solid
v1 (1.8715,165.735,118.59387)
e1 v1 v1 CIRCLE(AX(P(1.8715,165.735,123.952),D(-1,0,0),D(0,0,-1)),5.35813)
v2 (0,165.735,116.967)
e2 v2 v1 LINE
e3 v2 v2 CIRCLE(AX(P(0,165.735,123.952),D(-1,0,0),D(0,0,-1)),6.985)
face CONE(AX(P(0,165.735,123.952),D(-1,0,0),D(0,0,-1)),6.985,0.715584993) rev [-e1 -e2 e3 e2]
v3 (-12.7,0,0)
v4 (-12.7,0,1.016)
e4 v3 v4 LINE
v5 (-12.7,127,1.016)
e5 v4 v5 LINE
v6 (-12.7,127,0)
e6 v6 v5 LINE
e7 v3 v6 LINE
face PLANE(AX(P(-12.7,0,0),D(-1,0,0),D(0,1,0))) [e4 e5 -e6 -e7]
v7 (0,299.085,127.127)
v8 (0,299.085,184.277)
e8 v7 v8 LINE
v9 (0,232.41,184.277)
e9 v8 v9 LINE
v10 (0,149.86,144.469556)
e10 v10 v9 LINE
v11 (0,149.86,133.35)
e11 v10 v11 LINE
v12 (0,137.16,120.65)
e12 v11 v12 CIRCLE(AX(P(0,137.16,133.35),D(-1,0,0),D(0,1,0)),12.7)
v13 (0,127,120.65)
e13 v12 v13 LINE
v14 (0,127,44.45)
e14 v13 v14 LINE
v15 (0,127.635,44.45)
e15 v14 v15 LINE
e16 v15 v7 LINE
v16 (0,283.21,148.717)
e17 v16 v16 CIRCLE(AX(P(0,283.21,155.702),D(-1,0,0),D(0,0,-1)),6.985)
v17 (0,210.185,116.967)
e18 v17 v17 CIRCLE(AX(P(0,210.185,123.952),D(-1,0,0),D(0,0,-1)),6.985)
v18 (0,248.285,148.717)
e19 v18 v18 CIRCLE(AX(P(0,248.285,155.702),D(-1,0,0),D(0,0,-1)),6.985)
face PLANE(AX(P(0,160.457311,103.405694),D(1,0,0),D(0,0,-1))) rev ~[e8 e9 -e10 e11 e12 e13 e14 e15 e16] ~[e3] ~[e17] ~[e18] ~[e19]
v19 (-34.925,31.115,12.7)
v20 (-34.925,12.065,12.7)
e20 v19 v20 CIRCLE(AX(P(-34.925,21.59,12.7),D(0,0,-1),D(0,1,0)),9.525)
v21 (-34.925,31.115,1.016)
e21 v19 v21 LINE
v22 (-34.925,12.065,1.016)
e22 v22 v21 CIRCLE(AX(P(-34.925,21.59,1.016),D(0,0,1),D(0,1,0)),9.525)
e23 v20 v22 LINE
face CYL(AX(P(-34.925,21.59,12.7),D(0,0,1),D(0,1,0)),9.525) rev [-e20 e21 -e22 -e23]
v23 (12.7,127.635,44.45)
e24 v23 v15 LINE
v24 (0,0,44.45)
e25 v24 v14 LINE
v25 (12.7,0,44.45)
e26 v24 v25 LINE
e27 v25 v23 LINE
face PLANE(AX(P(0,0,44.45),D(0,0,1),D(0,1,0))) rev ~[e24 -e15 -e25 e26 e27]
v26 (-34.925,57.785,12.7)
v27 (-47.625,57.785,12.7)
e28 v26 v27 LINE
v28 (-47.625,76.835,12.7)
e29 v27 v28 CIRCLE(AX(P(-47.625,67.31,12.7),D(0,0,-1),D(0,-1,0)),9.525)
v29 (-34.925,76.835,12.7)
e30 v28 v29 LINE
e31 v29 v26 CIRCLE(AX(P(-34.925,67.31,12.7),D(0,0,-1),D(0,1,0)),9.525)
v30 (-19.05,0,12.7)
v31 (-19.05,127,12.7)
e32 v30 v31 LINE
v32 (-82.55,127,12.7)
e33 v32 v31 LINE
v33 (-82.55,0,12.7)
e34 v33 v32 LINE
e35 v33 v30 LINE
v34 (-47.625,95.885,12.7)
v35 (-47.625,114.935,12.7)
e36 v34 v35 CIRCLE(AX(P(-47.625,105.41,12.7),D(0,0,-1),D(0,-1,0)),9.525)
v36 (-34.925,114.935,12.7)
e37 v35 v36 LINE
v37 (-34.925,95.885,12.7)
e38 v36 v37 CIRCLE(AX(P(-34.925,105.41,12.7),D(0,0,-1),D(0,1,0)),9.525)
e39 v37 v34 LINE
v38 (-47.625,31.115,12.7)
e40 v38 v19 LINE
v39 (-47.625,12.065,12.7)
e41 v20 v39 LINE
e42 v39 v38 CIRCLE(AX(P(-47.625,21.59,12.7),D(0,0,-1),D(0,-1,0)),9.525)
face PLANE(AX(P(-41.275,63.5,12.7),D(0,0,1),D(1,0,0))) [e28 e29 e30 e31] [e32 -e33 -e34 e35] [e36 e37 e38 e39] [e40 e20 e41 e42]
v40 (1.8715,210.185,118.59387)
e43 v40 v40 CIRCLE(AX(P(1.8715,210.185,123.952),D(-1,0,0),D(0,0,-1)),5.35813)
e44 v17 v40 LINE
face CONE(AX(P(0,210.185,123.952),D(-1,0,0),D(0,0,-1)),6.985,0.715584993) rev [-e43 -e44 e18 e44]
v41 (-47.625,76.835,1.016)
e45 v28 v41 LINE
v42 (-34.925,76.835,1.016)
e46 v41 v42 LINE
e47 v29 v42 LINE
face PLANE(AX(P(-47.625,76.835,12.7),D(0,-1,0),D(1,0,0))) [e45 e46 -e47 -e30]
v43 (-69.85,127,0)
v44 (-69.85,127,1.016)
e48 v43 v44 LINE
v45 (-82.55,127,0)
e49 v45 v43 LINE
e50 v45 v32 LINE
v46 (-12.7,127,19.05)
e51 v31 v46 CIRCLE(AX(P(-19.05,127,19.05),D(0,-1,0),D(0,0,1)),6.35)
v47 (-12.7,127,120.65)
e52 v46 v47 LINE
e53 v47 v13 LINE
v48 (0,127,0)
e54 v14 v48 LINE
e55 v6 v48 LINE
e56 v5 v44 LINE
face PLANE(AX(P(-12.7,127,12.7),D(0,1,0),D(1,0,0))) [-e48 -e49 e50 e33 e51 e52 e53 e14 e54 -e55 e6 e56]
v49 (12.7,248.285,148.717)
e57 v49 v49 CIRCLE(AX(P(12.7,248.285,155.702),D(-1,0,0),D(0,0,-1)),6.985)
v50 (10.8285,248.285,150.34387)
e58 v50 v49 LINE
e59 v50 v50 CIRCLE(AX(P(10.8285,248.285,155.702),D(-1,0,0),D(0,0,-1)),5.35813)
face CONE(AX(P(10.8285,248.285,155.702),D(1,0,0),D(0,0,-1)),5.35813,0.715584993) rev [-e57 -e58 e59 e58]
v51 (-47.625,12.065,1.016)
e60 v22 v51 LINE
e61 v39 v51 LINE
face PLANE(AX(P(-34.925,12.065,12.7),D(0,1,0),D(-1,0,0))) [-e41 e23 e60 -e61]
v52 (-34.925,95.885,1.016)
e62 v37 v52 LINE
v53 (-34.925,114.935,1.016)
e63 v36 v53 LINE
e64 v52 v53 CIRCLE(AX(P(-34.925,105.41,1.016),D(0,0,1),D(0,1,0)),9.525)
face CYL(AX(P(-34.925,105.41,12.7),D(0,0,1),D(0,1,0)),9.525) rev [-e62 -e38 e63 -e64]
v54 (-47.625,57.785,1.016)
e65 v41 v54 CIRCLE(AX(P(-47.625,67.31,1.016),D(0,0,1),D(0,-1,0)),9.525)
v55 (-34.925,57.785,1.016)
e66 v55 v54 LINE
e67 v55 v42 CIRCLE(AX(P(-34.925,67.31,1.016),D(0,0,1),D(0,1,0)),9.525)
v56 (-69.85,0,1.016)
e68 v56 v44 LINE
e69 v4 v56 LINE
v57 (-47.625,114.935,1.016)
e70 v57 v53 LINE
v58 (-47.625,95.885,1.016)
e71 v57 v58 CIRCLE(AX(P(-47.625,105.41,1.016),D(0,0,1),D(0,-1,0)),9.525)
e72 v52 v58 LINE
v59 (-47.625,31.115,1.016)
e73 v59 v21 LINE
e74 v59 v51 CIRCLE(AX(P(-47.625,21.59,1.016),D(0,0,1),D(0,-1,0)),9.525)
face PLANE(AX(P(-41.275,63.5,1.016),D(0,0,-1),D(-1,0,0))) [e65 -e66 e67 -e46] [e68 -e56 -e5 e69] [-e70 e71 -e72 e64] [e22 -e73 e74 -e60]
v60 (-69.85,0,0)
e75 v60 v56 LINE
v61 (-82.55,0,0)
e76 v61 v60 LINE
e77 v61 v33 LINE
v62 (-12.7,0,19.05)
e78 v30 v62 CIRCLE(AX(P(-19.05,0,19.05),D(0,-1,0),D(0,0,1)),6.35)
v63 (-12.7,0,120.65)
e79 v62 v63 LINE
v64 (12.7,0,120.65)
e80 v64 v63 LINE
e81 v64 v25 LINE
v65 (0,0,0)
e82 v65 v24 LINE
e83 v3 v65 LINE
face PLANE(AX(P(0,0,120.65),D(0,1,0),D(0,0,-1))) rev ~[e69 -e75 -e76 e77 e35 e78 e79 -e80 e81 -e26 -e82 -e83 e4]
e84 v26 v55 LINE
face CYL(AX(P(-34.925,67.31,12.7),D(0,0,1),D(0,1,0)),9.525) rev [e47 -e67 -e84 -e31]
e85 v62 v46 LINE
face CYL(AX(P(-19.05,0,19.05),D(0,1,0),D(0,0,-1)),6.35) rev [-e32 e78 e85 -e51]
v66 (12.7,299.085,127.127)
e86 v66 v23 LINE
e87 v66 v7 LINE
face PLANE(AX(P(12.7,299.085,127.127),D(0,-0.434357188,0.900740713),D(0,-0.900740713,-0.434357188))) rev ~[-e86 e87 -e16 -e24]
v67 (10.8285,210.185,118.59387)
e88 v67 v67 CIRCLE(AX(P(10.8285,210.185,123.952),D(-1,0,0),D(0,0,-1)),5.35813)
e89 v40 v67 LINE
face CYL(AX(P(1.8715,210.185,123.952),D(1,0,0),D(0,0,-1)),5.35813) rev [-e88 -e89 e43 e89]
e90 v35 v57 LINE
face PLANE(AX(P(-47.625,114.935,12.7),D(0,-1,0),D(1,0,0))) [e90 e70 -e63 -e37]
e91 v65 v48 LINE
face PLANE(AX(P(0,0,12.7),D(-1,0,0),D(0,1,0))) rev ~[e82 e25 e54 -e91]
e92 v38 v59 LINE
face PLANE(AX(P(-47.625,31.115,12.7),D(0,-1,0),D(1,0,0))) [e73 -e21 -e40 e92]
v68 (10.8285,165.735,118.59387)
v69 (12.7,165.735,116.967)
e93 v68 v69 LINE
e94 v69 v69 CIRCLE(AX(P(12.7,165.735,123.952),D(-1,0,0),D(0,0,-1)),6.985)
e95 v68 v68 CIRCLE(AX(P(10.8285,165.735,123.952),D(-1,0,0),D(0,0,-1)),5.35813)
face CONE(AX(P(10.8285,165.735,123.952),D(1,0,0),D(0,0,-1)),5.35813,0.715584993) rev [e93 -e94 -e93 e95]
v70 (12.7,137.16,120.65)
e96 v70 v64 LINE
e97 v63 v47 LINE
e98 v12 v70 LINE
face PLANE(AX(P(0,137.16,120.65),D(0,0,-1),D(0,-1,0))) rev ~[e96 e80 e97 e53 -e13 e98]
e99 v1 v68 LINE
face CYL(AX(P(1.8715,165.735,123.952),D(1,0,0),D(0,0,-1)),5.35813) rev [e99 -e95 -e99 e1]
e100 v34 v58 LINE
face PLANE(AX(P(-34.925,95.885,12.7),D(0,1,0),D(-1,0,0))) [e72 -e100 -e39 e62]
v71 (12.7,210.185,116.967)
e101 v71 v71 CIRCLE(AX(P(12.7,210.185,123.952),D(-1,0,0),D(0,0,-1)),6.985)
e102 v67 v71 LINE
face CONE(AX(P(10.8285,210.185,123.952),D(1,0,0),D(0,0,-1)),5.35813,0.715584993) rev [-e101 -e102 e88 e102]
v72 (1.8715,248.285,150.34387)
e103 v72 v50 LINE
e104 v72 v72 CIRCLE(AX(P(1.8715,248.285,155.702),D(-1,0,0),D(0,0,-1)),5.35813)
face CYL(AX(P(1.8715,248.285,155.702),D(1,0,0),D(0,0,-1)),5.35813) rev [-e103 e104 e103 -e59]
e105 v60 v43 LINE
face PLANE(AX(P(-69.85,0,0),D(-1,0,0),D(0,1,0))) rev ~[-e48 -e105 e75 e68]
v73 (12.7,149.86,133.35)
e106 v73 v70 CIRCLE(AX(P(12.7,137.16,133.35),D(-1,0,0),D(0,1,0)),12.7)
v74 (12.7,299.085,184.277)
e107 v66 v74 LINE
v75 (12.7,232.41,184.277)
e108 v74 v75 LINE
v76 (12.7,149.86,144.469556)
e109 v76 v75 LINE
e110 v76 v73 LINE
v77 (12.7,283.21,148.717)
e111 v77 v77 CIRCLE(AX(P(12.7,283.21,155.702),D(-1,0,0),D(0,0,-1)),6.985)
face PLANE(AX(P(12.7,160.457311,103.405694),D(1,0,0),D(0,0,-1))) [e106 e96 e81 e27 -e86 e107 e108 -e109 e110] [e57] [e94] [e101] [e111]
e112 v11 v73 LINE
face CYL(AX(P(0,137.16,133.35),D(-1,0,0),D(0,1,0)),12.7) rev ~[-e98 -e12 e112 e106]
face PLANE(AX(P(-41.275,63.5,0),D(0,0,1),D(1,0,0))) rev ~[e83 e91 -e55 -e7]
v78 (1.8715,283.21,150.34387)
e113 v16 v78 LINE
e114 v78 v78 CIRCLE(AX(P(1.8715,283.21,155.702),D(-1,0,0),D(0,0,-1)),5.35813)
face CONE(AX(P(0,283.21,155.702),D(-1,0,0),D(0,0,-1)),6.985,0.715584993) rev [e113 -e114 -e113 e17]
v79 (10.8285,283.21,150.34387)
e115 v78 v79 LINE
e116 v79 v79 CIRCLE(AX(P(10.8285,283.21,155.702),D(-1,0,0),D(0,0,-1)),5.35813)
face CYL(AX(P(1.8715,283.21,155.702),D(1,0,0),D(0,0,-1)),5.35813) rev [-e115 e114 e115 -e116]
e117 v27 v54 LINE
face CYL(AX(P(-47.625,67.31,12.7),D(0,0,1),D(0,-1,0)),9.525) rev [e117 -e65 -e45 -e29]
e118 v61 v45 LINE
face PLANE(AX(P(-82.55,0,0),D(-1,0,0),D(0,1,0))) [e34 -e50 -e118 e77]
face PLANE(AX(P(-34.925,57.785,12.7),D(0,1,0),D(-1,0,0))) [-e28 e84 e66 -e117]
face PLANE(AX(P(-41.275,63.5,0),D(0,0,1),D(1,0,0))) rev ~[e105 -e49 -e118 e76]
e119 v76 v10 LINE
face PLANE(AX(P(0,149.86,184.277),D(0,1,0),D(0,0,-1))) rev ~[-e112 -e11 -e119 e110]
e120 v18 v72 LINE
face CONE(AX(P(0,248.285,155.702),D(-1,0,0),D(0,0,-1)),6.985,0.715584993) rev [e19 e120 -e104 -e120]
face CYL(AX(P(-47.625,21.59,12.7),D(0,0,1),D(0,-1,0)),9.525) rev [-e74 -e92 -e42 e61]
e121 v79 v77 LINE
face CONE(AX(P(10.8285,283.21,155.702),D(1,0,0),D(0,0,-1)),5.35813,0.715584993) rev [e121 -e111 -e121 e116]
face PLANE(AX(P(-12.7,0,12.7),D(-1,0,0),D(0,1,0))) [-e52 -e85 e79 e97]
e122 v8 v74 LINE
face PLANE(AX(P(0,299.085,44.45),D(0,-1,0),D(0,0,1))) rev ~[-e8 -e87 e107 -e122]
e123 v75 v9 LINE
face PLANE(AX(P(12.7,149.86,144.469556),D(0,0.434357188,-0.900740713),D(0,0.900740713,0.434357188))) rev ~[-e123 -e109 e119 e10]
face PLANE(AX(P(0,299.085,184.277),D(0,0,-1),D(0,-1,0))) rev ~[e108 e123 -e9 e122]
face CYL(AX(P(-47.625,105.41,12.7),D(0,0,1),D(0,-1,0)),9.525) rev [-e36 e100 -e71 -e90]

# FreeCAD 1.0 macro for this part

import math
import FreeCAD as App
import Part
import Sketcher
from FreeCAD import Vector
Q = App.Units.Quantity


def edges_at(feature, points):
    """Names of the edges that pass closest to the given points."""
    edges = feature.Shape.Edges
    near = lambda p: min(range(len(edges)), key=lambda i: edges[i].distToShape(Part.Vertex(*p))[0])
    return sorted({f"Edge{near(p) + 1}" for p in points})

doc = App.newDocument("Part")
body = doc.addObject("PartDesign::Body", "Body")

sketch1 = body.newObject("Sketcher::SketchObject", "Sketch")
sketch1.AttachmentSupport = (doc.getObject("XY_Plane"), [""])
sketch1.MapMode = "FlatFace"
sketch1.addGeometry([
    Part.LineSegment(Vector(-82.55, 127, 0), Vector(-82.55, 0, 0)),
    Part.LineSegment(Vector(-82.55, 0, 0), Vector(0, 0, 0)),
    Part.LineSegment(Vector(0, 0, 0), Vector(0, 127, 0)),
    Part.LineSegment(Vector(0, 127, 0), Vector(-82.55, 127, 0)),
], False)
sketch1.addConstraint([
    Sketcher.Constraint("Coincident", 0, 2, 1, 1),
    Sketcher.Constraint("Coincident", 1, 2, 2, 1),
    Sketcher.Constraint("Coincident", 2, 2, 3, 1),
    Sketcher.Constraint("Coincident", 3, 2, 0, 1),
    Sketcher.Constraint("Vertical", 0),
    Sketcher.Constraint("Horizontal", 1),
    Sketcher.Constraint("Vertical", 2),
    Sketcher.Constraint("Horizontal", 3),
    Sketcher.Constraint("Coincident", 1, 2, -1, 1),
    Sketcher.Constraint("DistanceY", 0, 2, 0, 1, Q("5 in")),
    Sketcher.Constraint("DistanceX", 1, 1, 1, 2, Q("3.25 in")),
])
pad1 = body.newObject("PartDesign::Pad", "Pad")
pad1.Profile = sketch1
pad1.Length = Q("0.5 in")

sketch2 = body.newObject("Sketcher::SketchObject", "Sketch001")
sketch2.AttachmentSupport = (doc.getObject("XY_Plane"), [""])
sketch2.MapMode = "FlatFace"
sketch2.addGeometry([
    Part.LineSegment(Vector(-12.7, 127, 0), Vector(-12.7, 0, 0)),
    Part.LineSegment(Vector(-12.7, 0, 0), Vector(-69.85, 0, 0)),
    Part.LineSegment(Vector(-69.85, 0, 0), Vector(-69.85, 127, 0)),
    Part.LineSegment(Vector(-69.85, 127, 0), Vector(-12.7, 127, 0)),
], False)
sketch2.addConstraint([
    Sketcher.Constraint("Coincident", 0, 2, 1, 1),
    Sketcher.Constraint("Coincident", 1, 2, 2, 1),
    Sketcher.Constraint("Coincident", 2, 2, 3, 1),
    Sketcher.Constraint("Coincident", 3, 2, 0, 1),
    Sketcher.Constraint("Vertical", 0),
    Sketcher.Constraint("Horizontal", 1),
    Sketcher.Constraint("Vertical", 2),
    Sketcher.Constraint("Horizontal", 3),
    Sketcher.Constraint("PointOnObject", 0, 2, -1),
    Sketcher.Constraint("DistanceY", 0, 2, 0, 1, Q("5 in")),
    Sketcher.Constraint("DistanceX", 1, 2, 1, 1, Q("2.25 in")),
    Sketcher.Constraint("DistanceX", 0, 2, -1, 1, Q("0.5 in")),
])
pocket1 = body.newObject("PartDesign::Pocket", "Pocket")
pocket1.Profile = sketch2
pocket1.Length = Q("0.04 in")
pocket1.Reversed = True

sketch3 = body.newObject("Sketcher::SketchObject", "Sketch002")
sketch3.AttachmentSupport = (doc.getObject("XY_Plane"), [""])
sketch3.MapMode = "FlatFace"
sketch3.AttachmentOffset = App.Placement(Vector(0, 0, 0.5 * 25.4), App.Rotation())
sketch3.addGeometry([
    Part.LineSegment(Vector(-34.925, 114.935, 0), Vector(-47.625, 114.935, 0)),
    Part.ArcOfCircle(Part.Circle(Vector(-47.625, 105.41, 0), Vector(0, 0, 1), 9.525), math.radians(90), math.radians(270)),
    Part.LineSegment(Vector(-47.625, 95.885, 0), Vector(-34.925, 95.885, 0)),
    Part.ArcOfCircle(Part.Circle(Vector(-34.925, 105.41, 0), Vector(0, 0, 1), 9.525), math.radians(-90), math.radians(90)),
], False)
sketch3.addConstraint([
    Sketcher.Constraint("Tangent", 0, 2, 1, 1),
    Sketcher.Constraint("Tangent", 1, 2, 2, 1),
    Sketcher.Constraint("Tangent", 2, 2, 3, 1),
    Sketcher.Constraint("Tangent", 3, 2, 0, 1),
    Sketcher.Constraint("Horizontal", 0),
    Sketcher.Constraint("Horizontal", 2),
    Sketcher.Constraint("DistanceX", 0, 2, 0, 1, Q("0.5 in")),
    Sketcher.Constraint("Radius", 1, Q("0.375 in")),
    Sketcher.Constraint("DistanceY", -1, 1, 1, 3, Q("4.15 in")),
    Sketcher.Constraint("DistanceX", 1, 3, -1, 1, Q("1.875 in")),
])
pocket2 = body.newObject("PartDesign::Pocket", "Pocket001")
pocket2.Profile = sketch3
pocket2.Type = "UpToFirst"

sketch4 = body.newObject("Sketcher::SketchObject", "Sketch003")
sketch4.AttachmentSupport = (doc.getObject("XY_Plane"), [""])
sketch4.MapMode = "FlatFace"
sketch4.AttachmentOffset = App.Placement(Vector(0, 0, 0.5 * 25.4), App.Rotation())
sketch4.addGeometry([
    Part.LineSegment(Vector(-34.925, 31.115, 0), Vector(-47.625, 31.115, 0)),
    Part.ArcOfCircle(Part.Circle(Vector(-47.625, 21.59, 0), Vector(0, 0, 1), 9.525), math.radians(90), math.radians(270)),
    Part.LineSegment(Vector(-47.625, 12.065, 0), Vector(-34.925, 12.065, 0)),
    Part.ArcOfCircle(Part.Circle(Vector(-34.925, 21.59, 0), Vector(0, 0, 1), 9.525), math.radians(-90), math.radians(90)),
], False)
sketch4.addConstraint([
    Sketcher.Constraint("Tangent", 0, 2, 1, 1),
    Sketcher.Constraint("Tangent", 1, 2, 2, 1),
    Sketcher.Constraint("Tangent", 2, 2, 3, 1),
    Sketcher.Constraint("Tangent", 3, 2, 0, 1),
    Sketcher.Constraint("Horizontal", 0),
    Sketcher.Constraint("Horizontal", 2),
    Sketcher.Constraint("DistanceX", 0, 2, 0, 1, Q("0.5 in")),
    Sketcher.Constraint("Radius", 1, Q("0.375 in")),
    Sketcher.Constraint("DistanceY", -1, 1, 1, 3, Q("0.85 in")),
    Sketcher.Constraint("DistanceX", 1, 3, -1, 1, Q("1.875 in")),
])
pocket3 = body.newObject("PartDesign::Pocket", "Pocket002")
pocket3.Profile = sketch4
pocket3.Type = "UpToFirst"

sketch5 = body.newObject("Sketcher::SketchObject", "Sketch004")
sketch5.AttachmentSupport = (doc.getObject("XY_Plane"), [""])
sketch5.MapMode = "FlatFace"
sketch5.AttachmentOffset = App.Placement(Vector(0, 0, 0.5 * 25.4), App.Rotation())
sketch5.addGeometry([
    Part.LineSegment(Vector(-34.925, 76.835, 0), Vector(-47.625, 76.835, 0)),
    Part.ArcOfCircle(Part.Circle(Vector(-47.625, 67.31, 0), Vector(0, 0, 1), 9.525), math.radians(90), math.radians(270)),
    Part.LineSegment(Vector(-47.625, 57.785, 0), Vector(-34.925, 57.785, 0)),
    Part.ArcOfCircle(Part.Circle(Vector(-34.925, 67.31, 0), Vector(0, 0, 1), 9.525), math.radians(-90), math.radians(90)),
], False)
sketch5.addConstraint([
    Sketcher.Constraint("Tangent", 0, 2, 1, 1),
    Sketcher.Constraint("Tangent", 1, 2, 2, 1),
    Sketcher.Constraint("Tangent", 2, 2, 3, 1),
    Sketcher.Constraint("Tangent", 3, 2, 0, 1),
    Sketcher.Constraint("Horizontal", 0),
    Sketcher.Constraint("Horizontal", 2),
    Sketcher.Constraint("DistanceX", 0, 2, 0, 1, Q("0.5 in")),
    Sketcher.Constraint("Radius", 1, Q("0.375 in")),
    Sketcher.Constraint("DistanceY", -1, 1, 1, 3, Q("2.65 in")),
    Sketcher.Constraint("DistanceX", 1, 3, -1, 1, Q("1.875 in")),
])
pocket4 = body.newObject("PartDesign::Pocket", "Pocket003")
pocket4.Profile = sketch5
pocket4.Type = "UpToFirst"

sketch6 = body.newObject("Sketcher::SketchObject", "Sketch005")
sketch6.AttachmentSupport = (doc.getObject("XY_Plane"), [""])
sketch6.MapMode = "FlatFace"
sketch6.AttachmentOffset = App.Placement(Vector(0, 0, 0.5 * 25.4), App.Rotation())
sketch6.addGeometry([
    Part.LineSegment(Vector(-12.7, 127, 0), Vector(-12.7, 0, 0)),
    Part.LineSegment(Vector(-12.7, 0, 0), Vector(0, 0, 0)),
    Part.LineSegment(Vector(0, 0, 0), Vector(0, 127, 0)),
    Part.LineSegment(Vector(0, 127, 0), Vector(-12.7, 127, 0)),
], False)
sketch6.addConstraint([
    Sketcher.Constraint("Coincident", 0, 2, 1, 1),
    Sketcher.Constraint("Coincident", 1, 2, 2, 1),
    Sketcher.Constraint("Coincident", 2, 2, 3, 1),
    Sketcher.Constraint("Coincident", 3, 2, 0, 1),
    Sketcher.Constraint("Vertical", 0),
    Sketcher.Constraint("Horizontal", 1),
    Sketcher.Constraint("Vertical", 2),
    Sketcher.Constraint("Horizontal", 3),
    Sketcher.Constraint("Coincident", 1, 2, -1, 1),
    Sketcher.Constraint("DistanceY", 0, 2, 0, 1, Q("5 in")),
    Sketcher.Constraint("DistanceX", 1, 1, 1, 2, Q("0.5 in")),
])
pad2 = body.newObject("PartDesign::Pad", "Pad001")
pad2.Profile = sketch6
pad2.Length = Q("4.25 in")

sketch7 = body.newObject("Sketcher::SketchObject", "Sketch006")
sketch7.AttachmentSupport = (doc.getObject("YZ_Plane"), [""])
sketch7.MapMode = "FlatFace"
sketch7.addGeometry([
    Part.LineSegment(Vector(0, 120.65, 0), Vector(0, 44.45, 0)),
    Part.LineSegment(Vector(0, 44.45, 0), Vector(299.085, 44.45, 0)),
    Part.LineSegment(Vector(299.085, 44.45, 0), Vector(299.085, 184.277, 0)),
    Part.LineSegment(Vector(299.085, 184.277, 0), Vector(149.86, 184.277, 0)),
    Part.LineSegment(Vector(149.86, 184.277, 0), Vector(149.86, 133.35, 0)),
    Part.ArcOfCircle(Part.Circle(Vector(137.16, 133.35, 0), Vector(0, 0, 1), 12.7), math.radians(-90), math.radians(0)),
    Part.LineSegment(Vector(137.16, 120.65, 0), Vector(0, 120.65, 0)),
], False)
sketch7.addConstraint([
    Sketcher.Constraint("Coincident", 0, 2, 1, 1),
    Sketcher.Constraint("Coincident", 1, 2, 2, 1),
    Sketcher.Constraint("Coincident", 2, 2, 3, 1),
    Sketcher.Constraint("Coincident", 3, 2, 4, 1),
    Sketcher.Constraint("Tangent", 4, 2, 5, 2),
    Sketcher.Constraint("Tangent", 5, 1, 6, 1),
    Sketcher.Constraint("Coincident", 6, 2, 0, 1),
    Sketcher.Constraint("Vertical", 0),
    Sketcher.Constraint("Horizontal", 1),
    Sketcher.Constraint("Vertical", 2),
    Sketcher.Constraint("Horizontal", 3),
    Sketcher.Constraint("Vertical", 4),
    Sketcher.Constraint("Horizontal", 6),
    Sketcher.Constraint("PointOnObject", 0, 2, -2),
    Sketcher.Constraint("Radius", 5, Q("0.5 in")),
    Sketcher.Constraint("DistanceY", 0, 2, 0, 1, Q("3 in")),
    Sketcher.Constraint("DistanceX", 6, 2, 6, 1, Q("5.4 in")),
    Sketcher.Constraint("DistanceX", 1, 1, 1, 2, Q("11.775 in")),
    Sketcher.Constraint("DistanceY", 2, 1, 2, 2, Q("5.505 in")),
    Sketcher.Constraint("DistanceY", -1, 1, 5, 3, Q("5.25 in")),
])
pad3 = body.newObject("PartDesign::Pad", "Pad002")
pad3.Profile = sketch7
pad3.Length = Q("0.5 in")

sketch8 = body.newObject("Sketcher::SketchObject", "Sketch007")
sketch8.AttachmentSupport = (doc.getObject("YZ_Plane"), [""])
sketch8.MapMode = "FlatFace"
sketch8.AttachmentOffset = App.Placement(Vector(0, 0, 0.5 * 25.4), App.Rotation())
sketch8.addGeometry([
    Part.LineSegment(Vector(299.085, 127.127, 0), Vector(127.635, 44.45, 0)),
    Part.LineSegment(Vector(127.635, 44.45, 0), Vector(299.085, 44.45, 0)),
    Part.LineSegment(Vector(299.085, 44.45, 0), Vector(299.085, 127.127, 0)),
], False)
sketch8.addConstraint([
    Sketcher.Constraint("Coincident", 0, 2, 1, 1),
    Sketcher.Constraint("Coincident", 1, 2, 2, 1),
    Sketcher.Constraint("Coincident", 2, 2, 0, 1),
    Sketcher.Constraint("Horizontal", 1),
    Sketcher.Constraint("Vertical", 2),
    Sketcher.Constraint("DistanceX", 1, 1, 1, 2, Q("6.75 in")),
    Sketcher.Constraint("DistanceY", 2, 1, 2, 2, Q("3.255 in")),
    Sketcher.Constraint("DistanceY", -1, 1, 0, 2, Q("1.75 in")),
    Sketcher.Constraint("DistanceX", -1, 1, 0, 2, Q("5.025 in")),
])
pocket5 = body.newObject("PartDesign::Pocket", "Pocket004")
pocket5.Profile = sketch8
pocket5.Type = "UpToFirst"

sketch9 = body.newObject("Sketcher::SketchObject", "Sketch008")
sketch9.AttachmentSupport = (doc.getObject("YZ_Plane"), [""])
sketch9.MapMode = "FlatFace"
sketch9.AttachmentOffset = App.Placement(Vector(0, 0, 0.5 * 25.4), App.Rotation())
sketch9.addGeometry([
    Part.LineSegment(Vector(149.86, 184.277, 0), Vector(149.86, 144.469556, 0)),
    Part.LineSegment(Vector(149.86, 144.469556, 0), Vector(232.41, 184.277, 0)),
    Part.LineSegment(Vector(232.41, 184.277, 0), Vector(149.86, 184.277, 0)),
], False)
sketch9.addConstraint([
    Sketcher.Constraint("Coincident", 0, 2, 1, 1),
    Sketcher.Constraint("Coincident", 1, 2, 2, 1),
    Sketcher.Constraint("Coincident", 2, 2, 0, 1),
    Sketcher.Constraint("Vertical", 0),
    Sketcher.Constraint("Horizontal", 2),
    Sketcher.Constraint("DistanceX", 2, 2, 2, 1, Q("3.25 in")),
    Sketcher.Constraint("DistanceX", -1, 1, 0, 2, Q("5.9 in")),
    Sketcher.Constraint("DistanceY", -1, 1, 1, 2, Q("7.255 in")),
    Sketcher.Constraint("DistanceY", 0, 2, 0, 1, Q("39.807444 mm")),
])
pocket6 = body.newObject("PartDesign::Pocket", "Pocket005")
pocket6.Profile = sketch9
pocket6.Type = "ThroughAll"

sketch10 = body.newObject("Sketcher::SketchObject", "Sketch009")
sketch10.AttachmentSupport = (doc.getObject("XZ_Plane"), [""])
sketch10.MapMode = "FlatFace"
sketch10.AttachmentOffset = App.Placement(Vector(0, 0, -9.775 * 25.4), App.Rotation())
sketch10.addGeometry([
    Part.LineSegment(Vector(0, 155.702, 0), Vector(12.7, 155.702, 0)),
    Part.LineSegment(Vector(12.7, 155.702, 0), Vector(12.7, 148.717, 0)),
    Part.LineSegment(Vector(12.7, 148.717, 0), Vector(10.8285, 150.34387, 0)),
    Part.LineSegment(Vector(10.8285, 150.34387, 0), Vector(1.8715, 150.34387, 0)),
    Part.LineSegment(Vector(1.8715, 150.34387, 0), Vector(0, 148.717, 0)),
    Part.LineSegment(Vector(0, 148.717, 0), Vector(0, 155.702, 0)),
], False)
sketch10.addGeometry(Part.LineSegment(Vector(12.7, 155.702, 0), Vector(0, 155.702, 0)), True)
sketch10.addConstraint([
    Sketcher.Constraint("Coincident", 0, 2, 1, 1),
    Sketcher.Constraint("Coincident", 1, 2, 2, 1),
    Sketcher.Constraint("Coincident", 2, 2, 3, 1),
    Sketcher.Constraint("Coincident", 3, 2, 4, 1),
    Sketcher.Constraint("Coincident", 4, 2, 5, 1),
    Sketcher.Constraint("Coincident", 5, 2, 0, 1),
    Sketcher.Constraint("Horizontal", 0),
    Sketcher.Constraint("Vertical", 1),
    Sketcher.Constraint("Horizontal", 3),
    Sketcher.Constraint("Vertical", 5),
    Sketcher.Constraint("Horizontal", 6),
    Sketcher.Constraint("Coincident", 6, 1, 0, 2),
    Sketcher.Constraint("PointOnObject", 4, 2, -2),
    Sketcher.Constraint("PointOnObject", 6, 2, -2),
    Sketcher.Constraint("Horizontal", 1, 2, 4, 2),
    Sketcher.Constraint("Equal", 2, 4),
    Sketcher.Constraint("DistanceX", 0, 1, 0, 2, Q("0.5 in")),
    Sketcher.Constraint("Angle", 2, Q("139 deg")),
    Sketcher.Constraint("DistanceY", 1, 2, 1, 1, Q("0.275 in")),
    Sketcher.Constraint("DistanceY", -1, 1, 0, 2, Q("6.13 in")),
    Sketcher.Constraint("DistanceX", 3, 2, 3, 1, Q("8.957 mm")),
])
groove = body.newObject("PartDesign::Groove", "Groove")
groove.Profile = sketch10
groove.ReferenceAxis = (sketch10, ["Axis0"])
groove.Angle = 360
doc.recompute()

linearpattern = body.newObject("PartDesign::LinearPattern", "LinearPattern")
linearpattern.Originals = [groove]
linearpattern.Direction = (doc.getObject("Y_Axis"), [""])
linearpattern.Mode = "offset"
linearpattern.Offset = Q("1.375 in")
linearpattern.Occurrences = 2
body.Tip = linearpattern

sketch11 = body.newObject("Sketcher::SketchObject", "Sketch010")
sketch11.AttachmentSupport = (doc.getObject("XZ_Plane"), [""])
sketch11.MapMode = "FlatFace"
sketch11.AttachmentOffset = App.Placement(Vector(0, 0, -8.275 * 25.4), App.Rotation())
sketch11.addGeometry([
    Part.LineSegment(Vector(0, 123.952, 0), Vector(12.7, 123.952, 0)),
    Part.LineSegment(Vector(12.7, 123.952, 0), Vector(12.7, 116.967, 0)),
    Part.LineSegment(Vector(12.7, 116.967, 0), Vector(10.8285, 118.59387, 0)),
    Part.LineSegment(Vector(10.8285, 118.59387, 0), Vector(1.8715, 118.59387, 0)),
    Part.LineSegment(Vector(1.8715, 118.59387, 0), Vector(0, 116.967, 0)),
    Part.LineSegment(Vector(0, 116.967, 0), Vector(0, 123.952, 0)),
], False)
sketch11.addGeometry(Part.LineSegment(Vector(12.7, 123.952, 0), Vector(0, 123.952, 0)), True)
sketch11.addConstraint([
    Sketcher.Constraint("Coincident", 0, 2, 1, 1),
    Sketcher.Constraint("Coincident", 1, 2, 2, 1),
    Sketcher.Constraint("Coincident", 2, 2, 3, 1),
    Sketcher.Constraint("Coincident", 3, 2, 4, 1),
    Sketcher.Constraint("Coincident", 4, 2, 5, 1),
    Sketcher.Constraint("Coincident", 5, 2, 0, 1),
    Sketcher.Constraint("Horizontal", 0),
    Sketcher.Constraint("Vertical", 1),
    Sketcher.Constraint("Horizontal", 3),
    Sketcher.Constraint("Vertical", 5),
    Sketcher.Constraint("Horizontal", 6),
    Sketcher.Constraint("Coincident", 6, 1, 0, 2),
    Sketcher.Constraint("PointOnObject", 4, 2, -2),
    Sketcher.Constraint("PointOnObject", 6, 2, -2),
    Sketcher.Constraint("Horizontal", 1, 2, 4, 2),
    Sketcher.Constraint("Equal", 2, 4),
    Sketcher.Constraint("DistanceX", 0, 1, 0, 2, Q("0.5 in")),
    Sketcher.Constraint("Angle", 2, Q("139 deg")),
    Sketcher.Constraint("DistanceY", 1, 2, 1, 1, Q("0.275 in")),
    Sketcher.Constraint("DistanceY", -1, 1, 0, 2, Q("4.88 in")),
    Sketcher.Constraint("DistanceX", 3, 2, 3, 1, Q("8.957 mm")),
])
groove2 = body.newObject("PartDesign::Groove", "Groove001")
groove2.Profile = sketch11
groove2.ReferenceAxis = (sketch11, ["Axis0"])
groove2.Angle = 360
doc.recompute()

linearpattern2 = body.newObject("PartDesign::LinearPattern", "LinearPattern001")
linearpattern2.Originals = [groove2]
linearpattern2.Direction = (doc.getObject("Y_Axis"), [""])
linearpattern2.Mode = "offset"
linearpattern2.Offset = Q("1.75 in")
linearpattern2.Occurrences = 2
linearpattern2.Reversed = True
body.Tip = linearpattern2
doc.recompute()

fillet = body.newObject("PartDesign::Fillet", "Fillet")
fillet.Base = (linearpattern2, edges_at(linearpattern2, [(-12.7, 63.5, 12.7)]))
fillet.Radius = Q("0.25 in")

sketch12 = body.newObject("Sketcher::SketchObject", "Sketch011")
sketch12.AttachmentSupport = (doc.getObject("XZ_Plane"), [""])
sketch12.MapMode = "FlatFace"
sketch12.AttachmentOffset = App.Placement(Vector(0, 0, -11.15 * 25.4), App.Rotation())
sketch12.addGeometry([
    Part.LineSegment(Vector(-82.55, 155.702, 0), Vector(-95.25, 155.702, 0)),
    Part.LineSegment(Vector(-95.25, 155.702, 0), Vector(-95.25, 162.687, 0)),
    Part.LineSegment(Vector(-95.25, 162.687, 0), Vector(-93.3785, 161.06013, 0)),
    Part.LineSegment(Vector(-93.3785, 161.06013, 0), Vector(-84.4215, 161.06013, 0)),
    Part.LineSegment(Vector(-84.4215, 161.06013, 0), Vector(-82.55, 162.687, 0)),
    Part.LineSegment(Vector(-82.55, 162.687, 0), Vector(-82.55, 155.702, 0)),
], False)
sketch12.addGeometry(Part.LineSegment(Vector(-95.25, 155.702, 0), Vector(-82.55, 155.702, 0)), True)
sketch12.addConstraint([
    Sketcher.Constraint("Coincident", 0, 2, 1, 1),
    Sketcher.Constraint("Coincident", 1, 2, 2, 1),
    Sketcher.Constraint("Coincident", 2, 2, 3, 1),
    Sketcher.Constraint("Coincident", 3, 2, 4, 1),
    Sketcher.Constraint("Coincident", 4, 2, 5, 1),
    Sketcher.Constraint("Coincident", 5, 2, 0, 1),
    Sketcher.Constraint("Horizontal", 0),
    Sketcher.Constraint("Vertical", 1),
    Sketcher.Constraint("Horizontal", 3),
    Sketcher.Constraint("Vertical", 5),
    Sketcher.Constraint("Horizontal", 6),
    Sketcher.Constraint("Coincident", 6, 1, 0, 2),
    Sketcher.Constraint("Horizontal", 1, 2, 4, 2),
    Sketcher.Constraint("Vertical", 4, 2, 6, 2),
    Sketcher.Constraint("Equal", 2, 4),
    Sketcher.Constraint("DistanceX", 0, 2, 0, 1, Q("0.5 in")),
    Sketcher.Constraint("Angle", 2, Q("-41 deg")),
    Sketcher.Constraint("DistanceY", 1, 1, 1, 2, Q("0.275 in")),
    Sketcher.Constraint("DistanceX", 0, 2, -1, 1, Q("3.75 in")),
    Sketcher.Constraint("DistanceY", -1, 1, 0, 2, Q("6.13 in")),
    Sketcher.Constraint("DistanceX", 3, 1, 3, 2, Q("8.957 mm")),
])
groove3 = body.newObject("PartDesign::Groove", "Groove002")
groove3.Profile = sketch12
groove3.ReferenceAxis = (sketch12, ["Axis0"])
groove3.Angle = 360
doc.recompute()

linearpattern3 = body.newObject("PartDesign::LinearPattern", "LinearPattern002")
linearpattern3.Originals = [groove3]
linearpattern3.Direction = (doc.getObject("Y_Axis"), [""])
linearpattern3.Mode = "offset"
linearpattern3.Offset = Q("1.375 in")
linearpattern3.Occurrences = 2
linearpattern3.Reversed = True
body.Tip = linearpattern3

sketch13 = body.newObject("Sketcher::SketchObject", "Sketch012")
sketch13.AttachmentSupport = (doc.getObject("XZ_Plane"), [""])
sketch13.MapMode = "FlatFace"
sketch13.AttachmentOffset = App.Placement(Vector(0, 0, -8.275 * 25.4), App.Rotation())
sketch13.addGeometry([
    Part.LineSegment(Vector(-82.55, 123.952, 0), Vector(-95.25, 123.952, 0)),
    Part.LineSegment(Vector(-95.25, 123.952, 0), Vector(-95.25, 130.937, 0)),
    Part.LineSegment(Vector(-95.25, 130.937, 0), Vector(-93.3785, 129.31013, 0)),
    Part.LineSegment(Vector(-93.3785, 129.31013, 0), Vector(-84.4215, 129.31013, 0)),
    Part.LineSegment(Vector(-84.4215, 129.31013, 0), Vector(-82.55, 130.937, 0)),
    Part.LineSegment(Vector(-82.55, 130.937, 0), Vector(-82.55, 123.952, 0)),
], False)
sketch13.addGeometry(Part.LineSegment(Vector(-95.25, 123.952, 0), Vector(-82.55, 123.952, 0)), True)
sketch13.addConstraint([
    Sketcher.Constraint("Coincident", 0, 2, 1, 1),
    Sketcher.Constraint("Coincident", 1, 2, 2, 1),
    Sketcher.Constraint("Coincident", 2, 2, 3, 1),
    Sketcher.Constraint("Coincident", 3, 2, 4, 1),
    Sketcher.Constraint("Coincident", 4, 2, 5, 1),
    Sketcher.Constraint("Coincident", 5, 2, 0, 1),
    Sketcher.Constraint("Horizontal", 0),
    Sketcher.Constraint("Vertical", 1),
    Sketcher.Constraint("Horizontal", 3),
    Sketcher.Constraint("Vertical", 5),
    Sketcher.Constraint("Horizontal", 6),
    Sketcher.Constraint("Coincident", 6, 1, 0, 2),
    Sketcher.Constraint("Horizontal", 1, 2, 4, 2),
    Sketcher.Constraint("Vertical", 4, 2, 6, 2),
    Sketcher.Constraint("Equal", 2, 4),
    Sketcher.Constraint("DistanceX", 0, 2, 0, 1, Q("0.5 in")),
    Sketcher.Constraint("Angle", 2, Q("-41 deg")),
    Sketcher.Constraint("DistanceY", 1, 1, 1, 2, Q("0.275 in")),
    Sketcher.Constraint("DistanceX", 0, 2, -1, 1, Q("3.75 in")),
    Sketcher.Constraint("DistanceY", -1, 1, 0, 2, Q("4.88 in")),
    Sketcher.Constraint("DistanceX", 3, 1, 3, 2, Q("8.957 mm")),
])
groove4 = body.newObject("PartDesign::Groove", "Groove003")
groove4.Profile = sketch13
groove4.ReferenceAxis = (sketch13, ["Axis0"])
groove4.Angle = 360
doc.recompute()

linearpattern4 = body.newObject("PartDesign::LinearPattern", "LinearPattern003")
linearpattern4.Originals = [groove4]
linearpattern4.Direction = (doc.getObject("Y_Axis"), [""])
linearpattern4.Mode = "offset"
linearpattern4.Offset = Q("1.75 in")
linearpattern4.Occurrences = 2
linearpattern4.Reversed = True
body.Tip = linearpattern4

doc.recompute()
